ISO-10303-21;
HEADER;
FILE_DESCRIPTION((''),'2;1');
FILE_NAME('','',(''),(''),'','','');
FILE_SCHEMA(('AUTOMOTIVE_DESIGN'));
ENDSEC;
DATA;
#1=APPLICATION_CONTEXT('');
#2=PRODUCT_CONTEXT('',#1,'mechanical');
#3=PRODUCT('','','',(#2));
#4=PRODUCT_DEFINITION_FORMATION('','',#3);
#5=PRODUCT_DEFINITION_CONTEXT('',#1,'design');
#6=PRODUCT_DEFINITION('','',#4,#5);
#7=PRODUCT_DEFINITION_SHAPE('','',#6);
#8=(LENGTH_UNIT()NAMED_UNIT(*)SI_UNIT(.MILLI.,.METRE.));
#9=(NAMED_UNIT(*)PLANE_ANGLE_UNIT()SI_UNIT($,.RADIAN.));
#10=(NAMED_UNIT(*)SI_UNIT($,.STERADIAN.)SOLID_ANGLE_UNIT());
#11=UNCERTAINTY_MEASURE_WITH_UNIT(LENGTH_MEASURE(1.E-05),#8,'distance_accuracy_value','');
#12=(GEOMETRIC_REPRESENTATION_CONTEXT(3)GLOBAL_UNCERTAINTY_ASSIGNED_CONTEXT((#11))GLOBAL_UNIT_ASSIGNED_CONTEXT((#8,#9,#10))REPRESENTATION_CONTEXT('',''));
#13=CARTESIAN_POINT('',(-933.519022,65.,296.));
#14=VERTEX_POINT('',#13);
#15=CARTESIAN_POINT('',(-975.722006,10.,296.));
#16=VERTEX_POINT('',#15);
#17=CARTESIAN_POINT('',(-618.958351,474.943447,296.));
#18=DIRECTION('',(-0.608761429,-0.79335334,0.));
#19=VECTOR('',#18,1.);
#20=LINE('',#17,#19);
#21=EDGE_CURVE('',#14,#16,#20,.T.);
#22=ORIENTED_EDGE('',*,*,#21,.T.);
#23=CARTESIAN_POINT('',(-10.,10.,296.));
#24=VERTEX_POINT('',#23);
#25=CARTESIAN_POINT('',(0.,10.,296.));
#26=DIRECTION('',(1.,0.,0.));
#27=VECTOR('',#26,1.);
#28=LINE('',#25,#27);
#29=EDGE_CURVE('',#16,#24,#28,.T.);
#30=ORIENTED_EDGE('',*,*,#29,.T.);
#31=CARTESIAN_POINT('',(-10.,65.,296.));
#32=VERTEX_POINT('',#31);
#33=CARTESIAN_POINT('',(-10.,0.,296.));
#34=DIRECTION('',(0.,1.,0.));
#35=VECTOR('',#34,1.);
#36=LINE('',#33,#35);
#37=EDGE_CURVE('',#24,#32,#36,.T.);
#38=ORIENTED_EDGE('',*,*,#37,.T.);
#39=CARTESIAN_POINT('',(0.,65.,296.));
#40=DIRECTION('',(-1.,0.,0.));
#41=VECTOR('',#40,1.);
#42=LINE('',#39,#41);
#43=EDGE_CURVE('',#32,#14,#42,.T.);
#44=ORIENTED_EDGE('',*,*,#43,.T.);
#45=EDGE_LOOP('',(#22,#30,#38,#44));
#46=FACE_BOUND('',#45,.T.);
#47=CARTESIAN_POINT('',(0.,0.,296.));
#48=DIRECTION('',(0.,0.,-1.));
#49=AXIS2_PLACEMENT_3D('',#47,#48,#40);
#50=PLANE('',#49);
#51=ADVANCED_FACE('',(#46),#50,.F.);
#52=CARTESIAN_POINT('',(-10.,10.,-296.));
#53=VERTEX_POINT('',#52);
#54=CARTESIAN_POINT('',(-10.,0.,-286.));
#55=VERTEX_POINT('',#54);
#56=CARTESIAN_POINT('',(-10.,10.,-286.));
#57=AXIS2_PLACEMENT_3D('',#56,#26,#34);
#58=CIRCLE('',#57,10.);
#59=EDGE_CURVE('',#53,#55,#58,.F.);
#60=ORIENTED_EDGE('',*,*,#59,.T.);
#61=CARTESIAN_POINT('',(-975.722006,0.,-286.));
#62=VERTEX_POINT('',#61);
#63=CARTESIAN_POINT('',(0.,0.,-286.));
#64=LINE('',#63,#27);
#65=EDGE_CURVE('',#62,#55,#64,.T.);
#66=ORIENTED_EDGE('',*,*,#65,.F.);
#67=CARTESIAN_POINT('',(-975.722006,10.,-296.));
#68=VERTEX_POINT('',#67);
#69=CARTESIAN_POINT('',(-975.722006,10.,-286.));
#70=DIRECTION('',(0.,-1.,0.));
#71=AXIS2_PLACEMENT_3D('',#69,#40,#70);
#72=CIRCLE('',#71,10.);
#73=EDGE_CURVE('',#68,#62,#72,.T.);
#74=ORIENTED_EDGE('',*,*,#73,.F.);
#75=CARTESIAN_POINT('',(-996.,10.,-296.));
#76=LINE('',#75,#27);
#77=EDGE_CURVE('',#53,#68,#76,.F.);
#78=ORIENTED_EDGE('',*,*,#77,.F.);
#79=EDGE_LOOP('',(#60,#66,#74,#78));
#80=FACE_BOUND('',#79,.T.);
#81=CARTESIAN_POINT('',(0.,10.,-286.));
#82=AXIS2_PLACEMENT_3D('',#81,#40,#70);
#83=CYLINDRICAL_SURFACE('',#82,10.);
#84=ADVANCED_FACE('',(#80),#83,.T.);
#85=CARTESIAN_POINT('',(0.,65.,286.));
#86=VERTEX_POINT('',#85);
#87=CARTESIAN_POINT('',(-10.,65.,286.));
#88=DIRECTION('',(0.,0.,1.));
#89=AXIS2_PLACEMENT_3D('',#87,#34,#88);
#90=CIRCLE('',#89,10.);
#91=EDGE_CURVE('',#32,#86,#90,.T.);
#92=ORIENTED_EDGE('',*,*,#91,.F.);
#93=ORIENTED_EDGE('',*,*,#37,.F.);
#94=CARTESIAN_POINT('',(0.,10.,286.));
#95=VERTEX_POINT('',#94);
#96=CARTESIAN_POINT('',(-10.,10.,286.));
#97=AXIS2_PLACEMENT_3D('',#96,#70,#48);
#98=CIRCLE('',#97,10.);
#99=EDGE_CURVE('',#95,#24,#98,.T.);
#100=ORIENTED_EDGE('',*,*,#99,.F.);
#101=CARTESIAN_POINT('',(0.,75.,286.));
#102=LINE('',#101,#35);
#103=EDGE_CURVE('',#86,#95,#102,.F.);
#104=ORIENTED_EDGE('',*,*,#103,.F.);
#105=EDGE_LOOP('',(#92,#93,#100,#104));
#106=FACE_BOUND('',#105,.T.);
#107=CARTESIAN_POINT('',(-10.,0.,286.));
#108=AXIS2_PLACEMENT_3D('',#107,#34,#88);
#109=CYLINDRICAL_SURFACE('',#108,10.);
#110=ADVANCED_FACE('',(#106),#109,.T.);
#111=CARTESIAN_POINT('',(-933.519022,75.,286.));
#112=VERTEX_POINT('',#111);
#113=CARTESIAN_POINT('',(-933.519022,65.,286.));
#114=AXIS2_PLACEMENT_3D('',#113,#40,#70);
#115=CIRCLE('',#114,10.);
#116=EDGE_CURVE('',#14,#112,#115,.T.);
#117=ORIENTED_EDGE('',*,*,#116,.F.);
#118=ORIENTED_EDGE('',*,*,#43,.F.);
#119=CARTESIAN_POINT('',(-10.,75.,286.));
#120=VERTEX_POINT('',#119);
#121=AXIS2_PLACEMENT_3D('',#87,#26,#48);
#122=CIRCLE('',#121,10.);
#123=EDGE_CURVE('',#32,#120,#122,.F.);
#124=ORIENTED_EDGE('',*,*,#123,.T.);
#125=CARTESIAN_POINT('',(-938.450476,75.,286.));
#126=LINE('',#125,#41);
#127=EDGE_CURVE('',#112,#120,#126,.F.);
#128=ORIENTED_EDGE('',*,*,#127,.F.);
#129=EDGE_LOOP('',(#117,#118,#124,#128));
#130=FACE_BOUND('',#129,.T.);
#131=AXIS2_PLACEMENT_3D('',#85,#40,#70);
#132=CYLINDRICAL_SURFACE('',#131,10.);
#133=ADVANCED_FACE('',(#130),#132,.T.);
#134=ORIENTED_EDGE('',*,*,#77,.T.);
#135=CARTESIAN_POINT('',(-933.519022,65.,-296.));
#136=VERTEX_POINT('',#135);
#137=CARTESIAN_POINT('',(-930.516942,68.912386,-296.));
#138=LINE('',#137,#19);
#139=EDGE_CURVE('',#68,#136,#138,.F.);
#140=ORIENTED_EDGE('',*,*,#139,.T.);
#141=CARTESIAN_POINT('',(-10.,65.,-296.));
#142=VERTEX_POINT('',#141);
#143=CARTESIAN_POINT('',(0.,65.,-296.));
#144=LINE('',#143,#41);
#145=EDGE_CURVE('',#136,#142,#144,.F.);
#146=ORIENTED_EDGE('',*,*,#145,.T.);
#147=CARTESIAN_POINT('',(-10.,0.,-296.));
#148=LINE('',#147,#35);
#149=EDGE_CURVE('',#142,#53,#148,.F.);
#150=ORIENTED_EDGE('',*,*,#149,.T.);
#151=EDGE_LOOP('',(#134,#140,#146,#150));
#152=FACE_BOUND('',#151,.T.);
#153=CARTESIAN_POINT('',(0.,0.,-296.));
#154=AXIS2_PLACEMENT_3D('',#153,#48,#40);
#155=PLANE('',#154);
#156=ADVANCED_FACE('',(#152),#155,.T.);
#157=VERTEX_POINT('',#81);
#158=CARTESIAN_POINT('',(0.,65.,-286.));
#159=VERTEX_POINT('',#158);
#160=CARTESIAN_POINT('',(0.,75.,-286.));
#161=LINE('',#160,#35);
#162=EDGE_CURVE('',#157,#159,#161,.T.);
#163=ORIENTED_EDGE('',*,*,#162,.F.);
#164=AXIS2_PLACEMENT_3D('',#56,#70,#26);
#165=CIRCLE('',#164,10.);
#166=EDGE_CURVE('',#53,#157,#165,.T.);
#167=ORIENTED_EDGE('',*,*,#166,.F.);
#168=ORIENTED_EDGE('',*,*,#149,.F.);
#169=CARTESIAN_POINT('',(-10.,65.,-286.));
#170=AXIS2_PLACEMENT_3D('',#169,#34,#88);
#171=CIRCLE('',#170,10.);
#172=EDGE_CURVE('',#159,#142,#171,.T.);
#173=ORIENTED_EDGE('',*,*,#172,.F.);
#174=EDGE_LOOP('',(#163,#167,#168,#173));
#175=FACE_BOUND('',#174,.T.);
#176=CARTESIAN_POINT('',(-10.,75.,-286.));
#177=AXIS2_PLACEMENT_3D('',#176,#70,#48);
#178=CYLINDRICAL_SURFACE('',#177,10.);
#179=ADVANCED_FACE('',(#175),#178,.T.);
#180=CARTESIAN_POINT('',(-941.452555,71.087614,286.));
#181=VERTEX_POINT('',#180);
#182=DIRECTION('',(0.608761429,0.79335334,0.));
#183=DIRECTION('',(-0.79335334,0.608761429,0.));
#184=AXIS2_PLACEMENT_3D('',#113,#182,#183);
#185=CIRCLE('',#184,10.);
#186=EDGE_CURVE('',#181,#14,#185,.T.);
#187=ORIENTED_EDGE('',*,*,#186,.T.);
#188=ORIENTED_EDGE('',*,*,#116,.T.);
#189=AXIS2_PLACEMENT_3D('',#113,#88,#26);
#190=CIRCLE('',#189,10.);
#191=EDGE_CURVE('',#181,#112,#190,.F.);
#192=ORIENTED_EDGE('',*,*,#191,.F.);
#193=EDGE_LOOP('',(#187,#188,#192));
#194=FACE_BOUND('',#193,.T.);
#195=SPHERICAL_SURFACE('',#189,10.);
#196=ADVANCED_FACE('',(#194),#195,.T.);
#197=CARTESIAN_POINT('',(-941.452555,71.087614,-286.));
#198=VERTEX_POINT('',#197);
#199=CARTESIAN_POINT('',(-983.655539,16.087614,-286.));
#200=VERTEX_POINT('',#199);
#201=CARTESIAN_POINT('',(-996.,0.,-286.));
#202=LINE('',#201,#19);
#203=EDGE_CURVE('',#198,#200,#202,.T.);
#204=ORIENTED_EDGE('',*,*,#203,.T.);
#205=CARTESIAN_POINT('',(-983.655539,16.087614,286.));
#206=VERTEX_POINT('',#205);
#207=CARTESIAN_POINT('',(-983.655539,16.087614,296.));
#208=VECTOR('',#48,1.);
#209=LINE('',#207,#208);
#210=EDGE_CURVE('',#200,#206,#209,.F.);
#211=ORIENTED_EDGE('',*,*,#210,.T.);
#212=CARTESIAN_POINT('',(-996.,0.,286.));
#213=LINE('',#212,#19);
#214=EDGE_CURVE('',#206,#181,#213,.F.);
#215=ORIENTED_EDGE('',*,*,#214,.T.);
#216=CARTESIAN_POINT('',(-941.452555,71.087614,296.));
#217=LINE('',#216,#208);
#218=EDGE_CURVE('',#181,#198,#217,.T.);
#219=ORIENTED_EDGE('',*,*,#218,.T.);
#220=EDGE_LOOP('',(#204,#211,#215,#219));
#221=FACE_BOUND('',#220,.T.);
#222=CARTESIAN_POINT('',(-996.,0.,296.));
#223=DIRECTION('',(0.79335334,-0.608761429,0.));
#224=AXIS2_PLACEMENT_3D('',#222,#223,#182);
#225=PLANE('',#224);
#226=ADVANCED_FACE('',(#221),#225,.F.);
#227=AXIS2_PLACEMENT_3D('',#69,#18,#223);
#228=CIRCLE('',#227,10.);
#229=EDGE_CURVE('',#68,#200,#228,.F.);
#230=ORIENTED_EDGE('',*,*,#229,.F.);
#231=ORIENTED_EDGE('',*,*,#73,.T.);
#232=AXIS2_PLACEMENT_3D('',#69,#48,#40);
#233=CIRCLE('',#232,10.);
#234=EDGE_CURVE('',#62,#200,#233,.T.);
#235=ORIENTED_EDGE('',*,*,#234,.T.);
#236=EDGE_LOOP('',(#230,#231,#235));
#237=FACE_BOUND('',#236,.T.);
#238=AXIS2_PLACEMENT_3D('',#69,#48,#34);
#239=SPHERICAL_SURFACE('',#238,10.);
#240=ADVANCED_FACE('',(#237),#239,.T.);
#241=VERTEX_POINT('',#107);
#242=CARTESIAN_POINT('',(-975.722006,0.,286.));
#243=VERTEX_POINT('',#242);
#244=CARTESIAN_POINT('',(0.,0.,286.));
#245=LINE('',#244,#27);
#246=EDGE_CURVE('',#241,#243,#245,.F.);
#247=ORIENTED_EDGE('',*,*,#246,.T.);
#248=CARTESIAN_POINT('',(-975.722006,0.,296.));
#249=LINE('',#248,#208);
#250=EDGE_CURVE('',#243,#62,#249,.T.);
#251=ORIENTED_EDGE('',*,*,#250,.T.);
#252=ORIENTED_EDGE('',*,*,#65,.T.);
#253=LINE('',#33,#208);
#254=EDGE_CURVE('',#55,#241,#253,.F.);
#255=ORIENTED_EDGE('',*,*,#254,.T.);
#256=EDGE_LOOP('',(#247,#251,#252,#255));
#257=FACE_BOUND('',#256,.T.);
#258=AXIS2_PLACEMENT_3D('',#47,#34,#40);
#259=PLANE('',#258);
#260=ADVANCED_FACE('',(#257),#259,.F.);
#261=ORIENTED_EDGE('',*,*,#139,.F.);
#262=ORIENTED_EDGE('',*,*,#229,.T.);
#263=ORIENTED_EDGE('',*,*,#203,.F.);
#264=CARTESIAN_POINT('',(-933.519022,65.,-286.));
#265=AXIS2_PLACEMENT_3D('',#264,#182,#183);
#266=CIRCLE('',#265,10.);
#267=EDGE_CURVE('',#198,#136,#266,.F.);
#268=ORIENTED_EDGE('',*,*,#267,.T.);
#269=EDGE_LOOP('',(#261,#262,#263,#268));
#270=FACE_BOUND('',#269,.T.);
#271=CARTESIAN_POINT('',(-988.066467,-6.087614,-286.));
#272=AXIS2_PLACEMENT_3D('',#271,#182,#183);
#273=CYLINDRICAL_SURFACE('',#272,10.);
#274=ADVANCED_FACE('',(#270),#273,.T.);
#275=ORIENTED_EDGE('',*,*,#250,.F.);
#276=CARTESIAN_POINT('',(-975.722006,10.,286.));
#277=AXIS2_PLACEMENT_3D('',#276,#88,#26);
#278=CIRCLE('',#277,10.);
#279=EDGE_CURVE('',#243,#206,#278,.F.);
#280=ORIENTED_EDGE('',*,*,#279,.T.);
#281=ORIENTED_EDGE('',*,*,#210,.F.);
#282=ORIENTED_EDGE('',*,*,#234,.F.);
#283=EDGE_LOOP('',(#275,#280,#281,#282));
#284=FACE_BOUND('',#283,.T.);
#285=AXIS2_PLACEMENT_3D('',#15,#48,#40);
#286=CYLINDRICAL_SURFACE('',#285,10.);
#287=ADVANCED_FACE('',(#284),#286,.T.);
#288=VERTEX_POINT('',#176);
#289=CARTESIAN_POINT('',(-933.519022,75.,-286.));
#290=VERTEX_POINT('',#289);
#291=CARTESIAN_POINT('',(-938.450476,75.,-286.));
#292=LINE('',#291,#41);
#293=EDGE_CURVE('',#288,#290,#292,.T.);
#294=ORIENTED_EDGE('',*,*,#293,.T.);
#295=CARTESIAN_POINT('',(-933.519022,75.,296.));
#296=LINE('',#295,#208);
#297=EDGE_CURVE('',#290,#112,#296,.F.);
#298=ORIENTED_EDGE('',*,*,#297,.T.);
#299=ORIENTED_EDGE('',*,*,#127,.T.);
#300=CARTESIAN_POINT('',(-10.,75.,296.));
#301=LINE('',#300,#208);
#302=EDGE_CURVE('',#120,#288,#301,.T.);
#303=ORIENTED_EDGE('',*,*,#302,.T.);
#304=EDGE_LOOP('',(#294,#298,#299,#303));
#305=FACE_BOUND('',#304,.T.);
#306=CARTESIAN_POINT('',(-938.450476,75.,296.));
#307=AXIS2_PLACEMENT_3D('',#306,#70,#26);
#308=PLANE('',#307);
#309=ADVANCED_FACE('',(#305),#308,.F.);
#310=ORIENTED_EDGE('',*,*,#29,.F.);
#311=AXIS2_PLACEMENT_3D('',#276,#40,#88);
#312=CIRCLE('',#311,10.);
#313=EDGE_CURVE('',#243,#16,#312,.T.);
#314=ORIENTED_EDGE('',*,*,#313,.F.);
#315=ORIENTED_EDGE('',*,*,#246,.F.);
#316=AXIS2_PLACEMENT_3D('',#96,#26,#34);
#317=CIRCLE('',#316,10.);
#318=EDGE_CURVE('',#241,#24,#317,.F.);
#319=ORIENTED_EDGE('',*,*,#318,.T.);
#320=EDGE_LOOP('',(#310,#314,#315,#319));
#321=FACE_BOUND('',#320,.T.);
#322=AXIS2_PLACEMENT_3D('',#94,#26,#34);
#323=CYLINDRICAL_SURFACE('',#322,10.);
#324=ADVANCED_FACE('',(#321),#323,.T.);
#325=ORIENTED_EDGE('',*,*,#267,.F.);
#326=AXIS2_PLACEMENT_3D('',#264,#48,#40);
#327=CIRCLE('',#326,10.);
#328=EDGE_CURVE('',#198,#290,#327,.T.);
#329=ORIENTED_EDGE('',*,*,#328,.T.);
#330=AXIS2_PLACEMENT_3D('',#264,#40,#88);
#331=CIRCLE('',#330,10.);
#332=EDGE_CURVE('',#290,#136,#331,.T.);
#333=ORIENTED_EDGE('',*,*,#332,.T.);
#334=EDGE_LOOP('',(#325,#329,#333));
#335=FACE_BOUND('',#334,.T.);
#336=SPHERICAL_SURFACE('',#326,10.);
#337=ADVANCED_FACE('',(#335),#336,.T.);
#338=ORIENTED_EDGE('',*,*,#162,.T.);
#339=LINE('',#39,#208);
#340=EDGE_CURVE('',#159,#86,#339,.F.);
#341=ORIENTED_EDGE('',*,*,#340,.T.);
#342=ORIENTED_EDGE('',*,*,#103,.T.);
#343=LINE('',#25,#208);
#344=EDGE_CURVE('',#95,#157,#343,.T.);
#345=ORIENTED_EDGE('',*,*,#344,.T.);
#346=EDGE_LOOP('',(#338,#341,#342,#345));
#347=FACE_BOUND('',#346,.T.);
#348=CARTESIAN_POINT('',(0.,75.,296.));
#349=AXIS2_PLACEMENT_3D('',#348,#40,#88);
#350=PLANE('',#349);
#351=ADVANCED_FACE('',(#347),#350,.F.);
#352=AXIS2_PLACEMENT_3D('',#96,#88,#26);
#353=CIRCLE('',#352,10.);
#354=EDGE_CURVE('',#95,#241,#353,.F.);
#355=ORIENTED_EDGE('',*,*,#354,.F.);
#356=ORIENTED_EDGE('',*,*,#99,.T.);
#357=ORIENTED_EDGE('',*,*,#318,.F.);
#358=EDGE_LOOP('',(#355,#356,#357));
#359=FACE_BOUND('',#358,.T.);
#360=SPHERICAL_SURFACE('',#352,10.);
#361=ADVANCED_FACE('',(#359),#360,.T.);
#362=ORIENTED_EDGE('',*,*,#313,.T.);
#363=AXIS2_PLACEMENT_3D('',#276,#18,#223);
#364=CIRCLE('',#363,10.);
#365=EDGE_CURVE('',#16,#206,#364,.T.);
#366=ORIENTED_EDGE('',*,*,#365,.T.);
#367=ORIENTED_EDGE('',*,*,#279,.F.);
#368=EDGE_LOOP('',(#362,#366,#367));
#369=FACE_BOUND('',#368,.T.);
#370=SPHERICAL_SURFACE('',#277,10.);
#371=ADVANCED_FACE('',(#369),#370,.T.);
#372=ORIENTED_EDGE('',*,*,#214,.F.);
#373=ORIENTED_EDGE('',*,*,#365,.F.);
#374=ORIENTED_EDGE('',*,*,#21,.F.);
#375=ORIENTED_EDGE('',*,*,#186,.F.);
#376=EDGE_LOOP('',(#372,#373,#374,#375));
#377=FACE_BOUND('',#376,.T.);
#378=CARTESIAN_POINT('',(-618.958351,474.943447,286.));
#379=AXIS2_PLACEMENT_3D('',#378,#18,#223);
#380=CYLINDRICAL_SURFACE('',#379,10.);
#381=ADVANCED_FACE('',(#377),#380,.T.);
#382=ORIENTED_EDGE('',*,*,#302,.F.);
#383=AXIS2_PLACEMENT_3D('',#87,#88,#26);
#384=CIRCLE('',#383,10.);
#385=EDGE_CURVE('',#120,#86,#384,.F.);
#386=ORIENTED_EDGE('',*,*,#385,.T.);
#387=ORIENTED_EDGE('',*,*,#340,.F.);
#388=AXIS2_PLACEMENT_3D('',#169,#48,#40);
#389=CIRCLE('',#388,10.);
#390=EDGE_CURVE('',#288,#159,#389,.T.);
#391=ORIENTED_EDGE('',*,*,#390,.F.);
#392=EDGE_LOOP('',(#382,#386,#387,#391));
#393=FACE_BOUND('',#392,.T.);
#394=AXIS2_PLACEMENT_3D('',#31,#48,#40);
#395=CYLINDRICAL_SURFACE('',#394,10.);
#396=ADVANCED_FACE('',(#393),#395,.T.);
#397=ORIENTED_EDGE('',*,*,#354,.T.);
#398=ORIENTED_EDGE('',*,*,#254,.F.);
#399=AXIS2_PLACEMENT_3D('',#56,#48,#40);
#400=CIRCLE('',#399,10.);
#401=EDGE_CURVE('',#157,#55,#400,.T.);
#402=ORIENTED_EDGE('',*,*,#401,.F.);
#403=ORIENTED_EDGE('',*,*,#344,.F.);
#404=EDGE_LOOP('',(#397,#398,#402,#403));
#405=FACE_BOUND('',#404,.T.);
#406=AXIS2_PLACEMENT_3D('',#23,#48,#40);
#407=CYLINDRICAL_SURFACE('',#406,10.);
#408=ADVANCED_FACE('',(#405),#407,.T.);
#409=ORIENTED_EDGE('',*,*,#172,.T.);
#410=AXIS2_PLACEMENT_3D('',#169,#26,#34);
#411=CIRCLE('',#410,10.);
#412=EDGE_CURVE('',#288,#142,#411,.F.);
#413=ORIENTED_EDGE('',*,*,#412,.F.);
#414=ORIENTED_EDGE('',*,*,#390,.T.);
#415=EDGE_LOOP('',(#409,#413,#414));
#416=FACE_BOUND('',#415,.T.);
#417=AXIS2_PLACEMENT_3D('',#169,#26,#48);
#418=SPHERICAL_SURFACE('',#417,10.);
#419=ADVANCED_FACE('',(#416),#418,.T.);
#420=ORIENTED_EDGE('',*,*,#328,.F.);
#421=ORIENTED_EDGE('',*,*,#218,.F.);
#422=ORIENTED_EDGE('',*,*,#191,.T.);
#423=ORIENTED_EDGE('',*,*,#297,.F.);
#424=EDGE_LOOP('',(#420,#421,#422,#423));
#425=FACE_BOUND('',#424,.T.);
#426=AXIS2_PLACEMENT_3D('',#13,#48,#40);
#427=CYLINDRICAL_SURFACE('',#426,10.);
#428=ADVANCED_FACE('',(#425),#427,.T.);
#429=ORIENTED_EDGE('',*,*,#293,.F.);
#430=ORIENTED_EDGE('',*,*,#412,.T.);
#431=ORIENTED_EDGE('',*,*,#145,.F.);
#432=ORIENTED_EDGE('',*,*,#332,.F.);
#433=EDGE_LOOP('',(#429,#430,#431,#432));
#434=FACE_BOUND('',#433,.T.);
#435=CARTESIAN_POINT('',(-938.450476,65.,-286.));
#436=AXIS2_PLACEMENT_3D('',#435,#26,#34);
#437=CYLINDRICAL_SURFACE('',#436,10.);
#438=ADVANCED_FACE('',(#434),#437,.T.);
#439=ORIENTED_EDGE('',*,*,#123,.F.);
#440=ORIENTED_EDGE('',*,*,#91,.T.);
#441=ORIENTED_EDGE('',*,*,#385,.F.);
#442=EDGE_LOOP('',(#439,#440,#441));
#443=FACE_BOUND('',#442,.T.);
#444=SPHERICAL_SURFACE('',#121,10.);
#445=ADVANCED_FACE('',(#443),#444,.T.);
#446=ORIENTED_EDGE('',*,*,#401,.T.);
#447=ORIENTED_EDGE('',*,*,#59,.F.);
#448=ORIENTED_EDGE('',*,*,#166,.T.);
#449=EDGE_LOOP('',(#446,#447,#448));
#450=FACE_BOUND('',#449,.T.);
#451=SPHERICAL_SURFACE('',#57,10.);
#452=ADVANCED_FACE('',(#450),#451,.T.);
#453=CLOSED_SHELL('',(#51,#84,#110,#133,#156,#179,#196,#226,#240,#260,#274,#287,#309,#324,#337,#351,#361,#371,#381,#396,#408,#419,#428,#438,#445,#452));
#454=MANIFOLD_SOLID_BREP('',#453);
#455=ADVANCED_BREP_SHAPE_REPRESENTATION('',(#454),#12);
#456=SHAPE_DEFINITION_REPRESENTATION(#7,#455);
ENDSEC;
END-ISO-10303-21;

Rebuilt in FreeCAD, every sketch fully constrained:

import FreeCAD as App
import Part
import Sketcher

V = App.Vector
Q = App.Units.Quantity

doc = App.newDocument("Part")
params = doc.addObject("Spreadsheet::Sheet", "Params")
for row, (alias, value) in enumerate([
    ("sketch1_width", "996 mm"),
    ("sketch1_height", "75 mm"),
    ("pad1_length", "592 mm"),
    ("fillet_radius", "10 mm"),
], start=1):
    params.set(f"A{row}", alias)
    params.set(f"B{row}", "=" + value)
    params.setAlias(f"B{row}", alias)

body = doc.addObject("PartDesign::Body", "Body")

# Sketch on XY plane
sketch1 = body.newObject("Sketcher::SketchObject", "Sketch")
sketch1.AttachmentSupport = (doc.getObject("XY_Plane"), [""])
sketch1.MapMode = "FlatFace"
sketch1.addGeometry([
    Part.LineSegment(V(-996, 0, 0), V(0, 0, 0)),
    Part.LineSegment(V(0, 0, 0), V(0, 75, 0)),
    Part.LineSegment(V(0, 75, 0), V(-938.450476, 75, 0)),
    Part.LineSegment(V(-938.450476, 75, 0), V(-996, 0, 0)),
], False)
sketch1.addConstraint([
    Sketcher.Constraint("Coincident", 0, 2, 1, 1),
    Sketcher.Constraint("Coincident", 1, 2, 2, 1),
    Sketcher.Constraint("Coincident", 2, 2, 3, 1),
    Sketcher.Constraint("Coincident", 3, 2, 0, 1),
    Sketcher.Constraint("Horizontal", 0),
    Sketcher.Constraint("Vertical", 1),
    Sketcher.Constraint("Horizontal", 2),
    Sketcher.Constraint("Coincident", 0, 2, -1, 1),
    Sketcher.Constraint("DistanceX", 0, 1, 0, 2, Q("996 mm")),
    Sketcher.Constraint("DistanceY", 1, 1, 1, 2, Q("75 mm")),
    Sketcher.Constraint("Angle", 3, Q("-127.5 deg")),
])
sketch1.setExpression("Constraints[8]", "Params.sketch1_width")
sketch1.setExpression("Constraints[9]", "Params.sketch1_height")
pad1 = body.newObject("PartDesign::Pad", "Pad")
pad1.Profile = sketch1
pad1.setExpression("Length", "Params.pad1_length")
pad1.Midplane = True
doc.recompute()

fillet = body.newObject("PartDesign::Fillet", "Fillet")
fillet.Base = (pad1, ["Edge1"])
fillet.UseAllEdges = True
fillet.setExpression("Radius", "Params.fillet_radius")

doc.recompute()
